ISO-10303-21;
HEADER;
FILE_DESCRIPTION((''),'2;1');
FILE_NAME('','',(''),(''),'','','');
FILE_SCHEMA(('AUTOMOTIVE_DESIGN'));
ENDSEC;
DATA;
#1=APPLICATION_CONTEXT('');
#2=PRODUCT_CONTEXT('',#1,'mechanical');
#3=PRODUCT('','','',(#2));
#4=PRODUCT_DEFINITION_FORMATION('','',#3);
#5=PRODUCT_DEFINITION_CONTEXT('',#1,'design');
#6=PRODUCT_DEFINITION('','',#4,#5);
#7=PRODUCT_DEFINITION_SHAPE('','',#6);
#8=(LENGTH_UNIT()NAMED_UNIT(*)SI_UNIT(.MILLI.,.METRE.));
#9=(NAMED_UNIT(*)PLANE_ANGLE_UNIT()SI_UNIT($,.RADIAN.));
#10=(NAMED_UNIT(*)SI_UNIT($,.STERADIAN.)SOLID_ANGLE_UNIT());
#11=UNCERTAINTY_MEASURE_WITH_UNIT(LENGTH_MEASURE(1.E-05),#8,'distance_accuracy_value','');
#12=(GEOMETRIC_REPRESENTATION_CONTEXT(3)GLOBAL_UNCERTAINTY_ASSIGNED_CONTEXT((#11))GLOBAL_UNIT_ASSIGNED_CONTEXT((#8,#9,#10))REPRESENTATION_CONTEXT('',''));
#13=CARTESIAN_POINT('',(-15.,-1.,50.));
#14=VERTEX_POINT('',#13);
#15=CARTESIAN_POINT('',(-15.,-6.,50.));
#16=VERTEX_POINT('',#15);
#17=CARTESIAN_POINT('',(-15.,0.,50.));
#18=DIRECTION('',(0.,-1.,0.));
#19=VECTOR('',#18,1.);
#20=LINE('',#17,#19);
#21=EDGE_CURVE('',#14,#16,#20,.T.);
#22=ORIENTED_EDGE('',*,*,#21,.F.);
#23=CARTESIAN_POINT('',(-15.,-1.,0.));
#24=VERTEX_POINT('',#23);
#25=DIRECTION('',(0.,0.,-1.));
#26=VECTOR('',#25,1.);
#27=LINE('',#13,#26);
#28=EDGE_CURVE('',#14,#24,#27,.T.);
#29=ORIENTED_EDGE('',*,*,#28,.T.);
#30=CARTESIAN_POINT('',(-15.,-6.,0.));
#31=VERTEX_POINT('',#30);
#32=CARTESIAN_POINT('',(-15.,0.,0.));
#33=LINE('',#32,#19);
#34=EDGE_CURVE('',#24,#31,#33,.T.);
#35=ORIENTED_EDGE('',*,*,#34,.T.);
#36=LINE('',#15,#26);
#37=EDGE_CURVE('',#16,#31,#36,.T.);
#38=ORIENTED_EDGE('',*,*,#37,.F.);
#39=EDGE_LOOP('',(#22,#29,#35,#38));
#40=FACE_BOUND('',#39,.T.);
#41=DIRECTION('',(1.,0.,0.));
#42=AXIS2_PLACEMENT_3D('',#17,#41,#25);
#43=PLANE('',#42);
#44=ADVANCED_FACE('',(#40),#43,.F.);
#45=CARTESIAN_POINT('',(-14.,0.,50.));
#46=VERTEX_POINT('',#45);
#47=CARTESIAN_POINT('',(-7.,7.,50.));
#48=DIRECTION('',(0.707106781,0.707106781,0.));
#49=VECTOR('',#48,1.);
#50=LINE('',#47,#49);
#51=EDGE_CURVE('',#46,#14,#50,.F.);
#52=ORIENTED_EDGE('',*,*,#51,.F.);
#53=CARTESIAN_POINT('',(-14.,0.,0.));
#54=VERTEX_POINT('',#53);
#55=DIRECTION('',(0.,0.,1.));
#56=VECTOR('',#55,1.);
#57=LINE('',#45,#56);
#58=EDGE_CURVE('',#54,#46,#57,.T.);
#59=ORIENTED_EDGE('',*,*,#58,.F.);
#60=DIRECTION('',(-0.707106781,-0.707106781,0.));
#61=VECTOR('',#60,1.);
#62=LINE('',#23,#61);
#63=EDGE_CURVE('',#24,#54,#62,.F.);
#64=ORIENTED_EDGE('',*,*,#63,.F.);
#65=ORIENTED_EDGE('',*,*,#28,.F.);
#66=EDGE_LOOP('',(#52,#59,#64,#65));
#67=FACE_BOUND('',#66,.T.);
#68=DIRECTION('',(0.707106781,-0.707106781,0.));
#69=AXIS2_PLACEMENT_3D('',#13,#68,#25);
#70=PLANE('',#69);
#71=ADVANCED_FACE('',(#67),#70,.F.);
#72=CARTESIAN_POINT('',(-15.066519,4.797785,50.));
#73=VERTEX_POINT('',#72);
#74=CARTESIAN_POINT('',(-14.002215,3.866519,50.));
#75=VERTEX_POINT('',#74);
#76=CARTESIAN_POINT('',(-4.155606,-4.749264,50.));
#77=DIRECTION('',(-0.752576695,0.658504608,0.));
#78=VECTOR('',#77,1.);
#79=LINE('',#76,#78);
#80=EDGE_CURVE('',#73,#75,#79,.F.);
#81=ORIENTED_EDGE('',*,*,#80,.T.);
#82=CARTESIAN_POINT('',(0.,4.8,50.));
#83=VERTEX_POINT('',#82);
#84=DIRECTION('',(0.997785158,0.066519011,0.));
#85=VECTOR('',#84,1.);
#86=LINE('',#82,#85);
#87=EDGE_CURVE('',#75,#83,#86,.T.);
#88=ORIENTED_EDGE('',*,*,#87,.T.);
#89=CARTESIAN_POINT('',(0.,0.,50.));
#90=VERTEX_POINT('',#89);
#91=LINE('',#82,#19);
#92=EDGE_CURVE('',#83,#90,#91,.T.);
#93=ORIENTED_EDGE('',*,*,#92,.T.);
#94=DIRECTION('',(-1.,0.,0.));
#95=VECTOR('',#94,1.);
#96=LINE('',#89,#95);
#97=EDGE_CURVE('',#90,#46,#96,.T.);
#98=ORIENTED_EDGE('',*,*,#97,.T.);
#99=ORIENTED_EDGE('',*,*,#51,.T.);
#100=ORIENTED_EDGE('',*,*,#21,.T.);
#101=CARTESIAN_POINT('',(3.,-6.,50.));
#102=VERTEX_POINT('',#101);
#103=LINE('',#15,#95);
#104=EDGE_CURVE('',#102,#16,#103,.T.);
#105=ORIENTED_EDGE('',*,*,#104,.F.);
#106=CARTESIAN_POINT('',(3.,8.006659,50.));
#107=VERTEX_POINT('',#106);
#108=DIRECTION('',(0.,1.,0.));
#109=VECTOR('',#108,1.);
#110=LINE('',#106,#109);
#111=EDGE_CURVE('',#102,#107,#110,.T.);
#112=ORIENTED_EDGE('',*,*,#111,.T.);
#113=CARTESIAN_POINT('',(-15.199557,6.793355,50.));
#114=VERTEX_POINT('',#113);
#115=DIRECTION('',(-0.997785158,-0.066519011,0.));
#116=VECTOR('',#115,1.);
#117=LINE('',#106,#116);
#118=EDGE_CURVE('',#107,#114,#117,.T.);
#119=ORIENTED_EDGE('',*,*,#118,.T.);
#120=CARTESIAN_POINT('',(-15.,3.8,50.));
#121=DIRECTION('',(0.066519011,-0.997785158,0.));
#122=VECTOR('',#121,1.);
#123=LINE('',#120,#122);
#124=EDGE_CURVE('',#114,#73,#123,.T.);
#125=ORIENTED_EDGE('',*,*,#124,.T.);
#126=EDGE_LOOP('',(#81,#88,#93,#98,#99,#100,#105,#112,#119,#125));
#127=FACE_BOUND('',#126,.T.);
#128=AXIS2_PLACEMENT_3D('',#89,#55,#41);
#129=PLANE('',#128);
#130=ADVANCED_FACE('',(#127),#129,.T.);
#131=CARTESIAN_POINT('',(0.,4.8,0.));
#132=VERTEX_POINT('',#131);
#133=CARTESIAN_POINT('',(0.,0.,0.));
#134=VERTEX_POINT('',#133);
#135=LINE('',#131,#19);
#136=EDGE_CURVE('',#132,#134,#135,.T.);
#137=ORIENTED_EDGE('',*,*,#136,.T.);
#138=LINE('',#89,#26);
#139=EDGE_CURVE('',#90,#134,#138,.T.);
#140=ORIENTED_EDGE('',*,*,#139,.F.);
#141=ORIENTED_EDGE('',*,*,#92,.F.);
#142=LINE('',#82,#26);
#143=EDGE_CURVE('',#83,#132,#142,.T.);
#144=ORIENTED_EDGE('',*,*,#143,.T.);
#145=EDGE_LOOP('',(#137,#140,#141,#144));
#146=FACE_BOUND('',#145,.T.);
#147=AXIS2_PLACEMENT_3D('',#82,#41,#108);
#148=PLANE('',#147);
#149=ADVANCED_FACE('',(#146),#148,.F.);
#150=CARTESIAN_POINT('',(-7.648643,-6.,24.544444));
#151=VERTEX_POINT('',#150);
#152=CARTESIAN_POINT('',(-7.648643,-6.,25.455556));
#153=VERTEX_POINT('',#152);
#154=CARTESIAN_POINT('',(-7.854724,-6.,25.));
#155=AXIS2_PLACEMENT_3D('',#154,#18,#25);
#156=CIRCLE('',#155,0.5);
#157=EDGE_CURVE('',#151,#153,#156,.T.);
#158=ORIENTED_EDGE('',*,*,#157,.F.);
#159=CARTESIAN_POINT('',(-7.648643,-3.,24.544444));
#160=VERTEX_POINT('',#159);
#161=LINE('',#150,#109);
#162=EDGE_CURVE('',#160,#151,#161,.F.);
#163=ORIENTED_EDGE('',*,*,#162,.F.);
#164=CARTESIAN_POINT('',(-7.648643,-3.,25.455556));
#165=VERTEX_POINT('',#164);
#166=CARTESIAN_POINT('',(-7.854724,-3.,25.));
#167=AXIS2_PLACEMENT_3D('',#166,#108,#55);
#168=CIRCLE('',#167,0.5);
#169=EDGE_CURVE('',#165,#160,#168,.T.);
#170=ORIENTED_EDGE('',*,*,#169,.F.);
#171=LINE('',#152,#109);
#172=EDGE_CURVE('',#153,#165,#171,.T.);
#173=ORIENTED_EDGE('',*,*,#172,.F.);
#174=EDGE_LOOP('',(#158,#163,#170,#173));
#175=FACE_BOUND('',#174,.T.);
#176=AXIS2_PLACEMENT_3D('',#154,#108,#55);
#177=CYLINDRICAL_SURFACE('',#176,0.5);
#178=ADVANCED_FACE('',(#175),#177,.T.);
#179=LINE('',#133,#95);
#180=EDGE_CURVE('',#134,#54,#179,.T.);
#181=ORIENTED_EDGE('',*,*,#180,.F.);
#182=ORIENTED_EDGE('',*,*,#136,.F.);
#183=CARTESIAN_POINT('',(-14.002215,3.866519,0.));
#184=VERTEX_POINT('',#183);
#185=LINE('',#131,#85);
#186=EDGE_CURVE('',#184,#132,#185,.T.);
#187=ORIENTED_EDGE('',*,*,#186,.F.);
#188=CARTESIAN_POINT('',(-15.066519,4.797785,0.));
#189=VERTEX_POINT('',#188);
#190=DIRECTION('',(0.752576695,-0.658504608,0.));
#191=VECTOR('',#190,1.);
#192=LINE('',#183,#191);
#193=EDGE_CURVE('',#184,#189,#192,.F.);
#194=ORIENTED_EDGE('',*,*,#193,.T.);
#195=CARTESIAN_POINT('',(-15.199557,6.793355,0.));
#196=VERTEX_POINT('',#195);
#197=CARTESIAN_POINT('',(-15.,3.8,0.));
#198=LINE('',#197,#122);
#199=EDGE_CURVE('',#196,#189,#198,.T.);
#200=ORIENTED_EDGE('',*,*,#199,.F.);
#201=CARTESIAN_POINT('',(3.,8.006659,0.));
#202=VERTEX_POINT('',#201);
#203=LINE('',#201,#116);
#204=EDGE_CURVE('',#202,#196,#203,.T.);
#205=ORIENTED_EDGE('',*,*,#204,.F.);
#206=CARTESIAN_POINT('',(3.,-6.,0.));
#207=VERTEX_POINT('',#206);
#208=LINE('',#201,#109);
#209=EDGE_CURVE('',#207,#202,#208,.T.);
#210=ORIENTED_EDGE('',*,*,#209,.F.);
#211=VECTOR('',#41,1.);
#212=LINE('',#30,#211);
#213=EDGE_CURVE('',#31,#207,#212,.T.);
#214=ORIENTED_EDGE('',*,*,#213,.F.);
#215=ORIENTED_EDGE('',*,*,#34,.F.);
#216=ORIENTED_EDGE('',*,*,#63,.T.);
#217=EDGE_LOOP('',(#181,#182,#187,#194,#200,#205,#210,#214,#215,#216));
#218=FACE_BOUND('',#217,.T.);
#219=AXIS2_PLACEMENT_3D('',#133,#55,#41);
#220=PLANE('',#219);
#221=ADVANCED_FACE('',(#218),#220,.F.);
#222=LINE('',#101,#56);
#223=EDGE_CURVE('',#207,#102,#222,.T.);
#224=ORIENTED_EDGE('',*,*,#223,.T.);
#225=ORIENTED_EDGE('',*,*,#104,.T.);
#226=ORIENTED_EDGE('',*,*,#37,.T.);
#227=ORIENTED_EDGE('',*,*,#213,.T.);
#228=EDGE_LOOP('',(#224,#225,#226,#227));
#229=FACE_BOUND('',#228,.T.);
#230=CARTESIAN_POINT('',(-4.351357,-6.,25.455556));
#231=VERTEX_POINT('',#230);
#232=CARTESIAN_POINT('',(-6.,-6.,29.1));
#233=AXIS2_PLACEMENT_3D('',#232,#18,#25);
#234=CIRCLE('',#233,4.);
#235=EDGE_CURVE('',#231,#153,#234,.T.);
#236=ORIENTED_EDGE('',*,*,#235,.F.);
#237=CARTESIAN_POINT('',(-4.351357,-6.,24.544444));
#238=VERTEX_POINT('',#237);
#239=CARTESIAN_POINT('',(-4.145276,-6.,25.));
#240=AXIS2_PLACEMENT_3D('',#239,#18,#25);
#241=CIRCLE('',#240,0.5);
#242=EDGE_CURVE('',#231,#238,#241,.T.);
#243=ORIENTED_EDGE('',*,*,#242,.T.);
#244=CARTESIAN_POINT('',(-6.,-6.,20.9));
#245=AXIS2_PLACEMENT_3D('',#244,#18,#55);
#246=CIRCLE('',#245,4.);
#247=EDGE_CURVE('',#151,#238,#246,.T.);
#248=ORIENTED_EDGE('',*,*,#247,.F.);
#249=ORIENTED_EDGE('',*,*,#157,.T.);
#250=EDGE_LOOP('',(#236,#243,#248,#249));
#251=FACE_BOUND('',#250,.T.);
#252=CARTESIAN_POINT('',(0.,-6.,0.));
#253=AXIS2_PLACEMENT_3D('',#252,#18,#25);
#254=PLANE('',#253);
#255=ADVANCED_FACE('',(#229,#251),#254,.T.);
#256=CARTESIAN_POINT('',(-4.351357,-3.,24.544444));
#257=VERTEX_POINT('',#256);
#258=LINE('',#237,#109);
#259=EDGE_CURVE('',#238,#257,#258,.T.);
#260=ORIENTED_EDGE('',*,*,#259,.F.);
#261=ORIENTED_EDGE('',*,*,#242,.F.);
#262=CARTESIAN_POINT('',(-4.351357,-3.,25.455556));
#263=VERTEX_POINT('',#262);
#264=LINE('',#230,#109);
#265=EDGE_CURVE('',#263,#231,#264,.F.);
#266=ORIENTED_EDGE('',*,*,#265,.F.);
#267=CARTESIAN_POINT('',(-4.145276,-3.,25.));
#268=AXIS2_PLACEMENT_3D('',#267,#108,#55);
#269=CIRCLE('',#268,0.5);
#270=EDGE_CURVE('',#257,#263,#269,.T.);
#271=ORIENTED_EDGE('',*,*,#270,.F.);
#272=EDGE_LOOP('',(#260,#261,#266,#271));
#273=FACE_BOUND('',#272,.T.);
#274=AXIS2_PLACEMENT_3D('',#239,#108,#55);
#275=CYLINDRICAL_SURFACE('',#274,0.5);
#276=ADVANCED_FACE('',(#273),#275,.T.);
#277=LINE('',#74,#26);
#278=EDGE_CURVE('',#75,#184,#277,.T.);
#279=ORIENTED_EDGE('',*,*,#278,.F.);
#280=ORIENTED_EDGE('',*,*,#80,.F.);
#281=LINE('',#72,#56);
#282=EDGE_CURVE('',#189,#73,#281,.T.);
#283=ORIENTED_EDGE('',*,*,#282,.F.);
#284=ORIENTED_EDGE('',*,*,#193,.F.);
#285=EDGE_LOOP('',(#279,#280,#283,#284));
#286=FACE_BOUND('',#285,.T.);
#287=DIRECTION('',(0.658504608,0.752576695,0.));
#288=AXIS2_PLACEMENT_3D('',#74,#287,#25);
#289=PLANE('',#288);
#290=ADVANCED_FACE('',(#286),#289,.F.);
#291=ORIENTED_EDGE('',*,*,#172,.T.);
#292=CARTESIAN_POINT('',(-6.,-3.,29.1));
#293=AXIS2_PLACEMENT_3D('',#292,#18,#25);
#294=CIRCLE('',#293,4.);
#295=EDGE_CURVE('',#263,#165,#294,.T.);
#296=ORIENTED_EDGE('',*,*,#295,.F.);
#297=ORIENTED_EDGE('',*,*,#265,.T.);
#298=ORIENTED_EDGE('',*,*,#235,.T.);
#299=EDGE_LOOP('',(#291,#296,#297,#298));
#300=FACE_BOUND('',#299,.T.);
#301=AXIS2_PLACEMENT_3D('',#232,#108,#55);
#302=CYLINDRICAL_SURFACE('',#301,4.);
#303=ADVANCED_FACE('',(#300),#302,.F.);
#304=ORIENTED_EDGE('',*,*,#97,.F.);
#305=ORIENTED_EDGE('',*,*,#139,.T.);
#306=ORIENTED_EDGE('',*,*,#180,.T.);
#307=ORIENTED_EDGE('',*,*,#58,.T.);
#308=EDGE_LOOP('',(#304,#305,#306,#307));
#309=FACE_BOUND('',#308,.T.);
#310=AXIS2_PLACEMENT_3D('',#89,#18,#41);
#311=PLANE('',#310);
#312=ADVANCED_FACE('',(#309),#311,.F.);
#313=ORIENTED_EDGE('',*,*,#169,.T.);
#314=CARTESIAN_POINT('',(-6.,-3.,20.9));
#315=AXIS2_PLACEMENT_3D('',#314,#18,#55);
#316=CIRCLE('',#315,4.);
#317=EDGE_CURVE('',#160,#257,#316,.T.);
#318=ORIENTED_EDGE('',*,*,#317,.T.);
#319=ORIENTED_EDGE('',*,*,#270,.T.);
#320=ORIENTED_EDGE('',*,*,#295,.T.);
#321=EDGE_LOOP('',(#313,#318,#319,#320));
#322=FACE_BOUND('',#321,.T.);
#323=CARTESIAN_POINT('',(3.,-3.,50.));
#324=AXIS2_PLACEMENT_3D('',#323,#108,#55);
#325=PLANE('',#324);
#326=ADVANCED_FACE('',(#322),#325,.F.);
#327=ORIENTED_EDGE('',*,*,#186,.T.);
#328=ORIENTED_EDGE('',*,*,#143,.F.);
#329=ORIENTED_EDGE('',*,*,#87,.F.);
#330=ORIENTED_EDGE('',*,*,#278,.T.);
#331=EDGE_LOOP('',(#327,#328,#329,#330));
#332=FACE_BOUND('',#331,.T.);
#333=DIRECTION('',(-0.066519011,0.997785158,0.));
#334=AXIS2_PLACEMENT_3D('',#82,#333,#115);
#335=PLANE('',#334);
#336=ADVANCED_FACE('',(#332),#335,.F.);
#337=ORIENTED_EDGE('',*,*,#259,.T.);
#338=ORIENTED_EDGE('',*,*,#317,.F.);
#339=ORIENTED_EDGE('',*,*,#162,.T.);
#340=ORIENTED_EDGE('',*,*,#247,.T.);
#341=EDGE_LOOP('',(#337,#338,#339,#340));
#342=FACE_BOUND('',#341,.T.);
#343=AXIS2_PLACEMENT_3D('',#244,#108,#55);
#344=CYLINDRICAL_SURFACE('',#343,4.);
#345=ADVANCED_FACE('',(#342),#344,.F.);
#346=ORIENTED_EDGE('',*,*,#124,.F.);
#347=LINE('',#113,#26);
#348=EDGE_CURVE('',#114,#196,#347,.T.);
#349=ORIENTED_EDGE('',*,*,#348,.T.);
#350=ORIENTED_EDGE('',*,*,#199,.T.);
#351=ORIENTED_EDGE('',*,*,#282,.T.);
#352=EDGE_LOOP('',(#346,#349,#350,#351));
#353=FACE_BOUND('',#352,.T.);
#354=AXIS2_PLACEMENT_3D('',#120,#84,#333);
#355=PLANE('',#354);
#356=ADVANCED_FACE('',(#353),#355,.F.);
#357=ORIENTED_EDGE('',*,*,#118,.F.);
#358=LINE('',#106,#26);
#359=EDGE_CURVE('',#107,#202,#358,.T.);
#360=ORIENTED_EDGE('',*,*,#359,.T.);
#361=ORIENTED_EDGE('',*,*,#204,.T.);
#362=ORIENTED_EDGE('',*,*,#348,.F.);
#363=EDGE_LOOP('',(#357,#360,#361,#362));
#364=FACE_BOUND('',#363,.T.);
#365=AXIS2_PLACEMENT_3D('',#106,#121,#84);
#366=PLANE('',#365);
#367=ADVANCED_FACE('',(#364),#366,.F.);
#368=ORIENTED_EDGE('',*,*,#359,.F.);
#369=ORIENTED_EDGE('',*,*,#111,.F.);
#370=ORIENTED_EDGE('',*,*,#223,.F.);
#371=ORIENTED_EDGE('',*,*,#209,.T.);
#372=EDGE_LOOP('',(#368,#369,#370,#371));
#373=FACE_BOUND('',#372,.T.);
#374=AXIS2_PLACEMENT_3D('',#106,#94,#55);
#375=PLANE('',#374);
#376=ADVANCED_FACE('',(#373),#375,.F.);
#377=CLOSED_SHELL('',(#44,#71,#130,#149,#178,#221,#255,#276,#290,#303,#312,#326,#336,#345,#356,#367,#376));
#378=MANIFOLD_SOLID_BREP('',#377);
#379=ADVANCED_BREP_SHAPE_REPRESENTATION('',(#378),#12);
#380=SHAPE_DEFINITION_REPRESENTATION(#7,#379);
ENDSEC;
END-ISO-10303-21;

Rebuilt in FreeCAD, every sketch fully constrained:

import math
import FreeCAD as App
import Part
import Sketcher

V = App.Vector
Q = App.Units.Quantity


def edges_at(feature, points):
    """Names of the edges that pass closest to the given points."""
    edges = feature.Shape.Edges
    near = lambda p: min(range(len(edges)), key=lambda i: edges[i].distToShape(Part.Vertex(*p))[0])
    return sorted({f"Edge{near(p) + 1}" for p in points})

doc = App.newDocument("Part")
body = doc.addObject("PartDesign::Body", "Body")

sketch1 = body.newObject("Sketcher::SketchObject", "Sketch")
sketch1.AttachmentSupport = (doc.getObject("XY_Plane"), [""])
sketch1.MapMode = "FlatFace"
sketch1.addGeometry([
    Part.LineSegment(V(0, 4.8, 0), V(0, 0, 0)),
    Part.LineSegment(V(0, 0, 0), V(-15, 0, 0)),
    Part.LineSegment(V(-15, 0, 0), V(-15, -3, 0)),
    Part.LineSegment(V(-15, -3, 0), V(3, -3, 0)),
    Part.LineSegment(V(3, -3, 0), V(3, 8, 0)),
    Part.LineSegment(V(3, 8, 0), V(-15.2, 6.8, 0)),
    Part.LineSegment(V(-15.2, 6.8, 0), V(-15, 3.8, 0)),
    Part.LineSegment(V(-15, 3.8, 0), V(0, 4.8, 0)),
], False)
sketch1.addConstraint([
    Sketcher.Constraint("Coincident", 0, 2, 1, 1),
    Sketcher.Constraint("Coincident", 1, 2, 2, 1),
    Sketcher.Constraint("Coincident", 2, 2, 3, 1),
    Sketcher.Constraint("Coincident", 3, 2, 4, 1),
    Sketcher.Constraint("Coincident", 4, 2, 5, 1),
    Sketcher.Constraint("Coincident", 5, 2, 6, 1),
    Sketcher.Constraint("Coincident", 6, 2, 7, 1),
    Sketcher.Constraint("Coincident", 7, 2, 0, 1),
    Sketcher.Constraint("Vertical", 0),
    Sketcher.Constraint("Horizontal", 1),
    Sketcher.Constraint("Vertical", 2),
    Sketcher.Constraint("Horizontal", 3),
    Sketcher.Constraint("Vertical", 4),
    Sketcher.Constraint("Coincident", 0, 2, -1, 1),
    Sketcher.Constraint("Perpendicular", 5, 6),
    Sketcher.Constraint("Perpendicular", 6, 7),
    Sketcher.Constraint("Vertical", 2, 2, 6, 2),
    Sketcher.Constraint("DistanceX", 1, 2, 1, 1, Q("15 mm")),
    Sketcher.Constraint("DistanceX", 3, 1, 3, 2, Q("18 mm")),
    Sketcher.Constraint("DistanceY", 2, 2, 2, 1, Q("3 mm")),
    Sketcher.Constraint("Distance", 6, Q("3 mm")),
    Sketcher.Constraint("DistanceY", 0, 2, 0, 1, Q("4.8 mm")),
    Sketcher.Constraint("DistanceY", 6, 2, 7, 2, Q("1 mm")),
])
pad1 = body.newObject("PartDesign::Pad", "Pad")
pad1.Profile = sketch1
pad1.Length = 50

sketch2 = body.newObject("Sketcher::SketchObject", "Sketch001")
sketch2.AttachmentSupport = (doc.getObject("XZ_Plane"), [""])
sketch2.MapMode = "FlatFace"
sketch2.AttachmentOffset = App.Placement(V(0, 0, 3), App.Rotation())
sketch2.addGeometry([
    Part.LineSegment(V(-15, 50, 0), V(-15, 0, 0)),
    Part.LineSegment(V(-15, 0, 0), V(3, 0, 0)),
    Part.LineSegment(V(3, 0, 0), V(3, 50, 0)),
    Part.LineSegment(V(3, 50, 0), V(-15, 50, 0)),
    Part.LineSegment(V(-4.8, 25.3, 0), V(-5.6, 25, 0)),
    Part.LineSegment(V(-5.6, 25, 0), V(-4.8, 24.7, 0)),
    Part.ArcOfCircle(Part.Circle(V(-6, 20.9, 0), V(0, 0, 1), 4), math.radians(107), math.radians(433)),
    Part.LineSegment(V(-7.2, 24.7, 0), V(-6.4, 25, 0)),
    Part.LineSegment(V(-6.4, 25, 0), V(-7.2, 25.3, 0)),
    Part.ArcOfCircle(Part.Circle(V(-6, 29.1, 0), V(0, 0, 1), 4), math.radians(-73), math.radians(253)),
], False)
sketch2.addConstraint([
    Sketcher.Constraint("Coincident", 0, 2, 1, 1),
    Sketcher.Constraint("Coincident", 1, 2, 2, 1),
    Sketcher.Constraint("Coincident", 2, 2, 3, 1),
    Sketcher.Constraint("Coincident", 3, 2, 0, 1),
    Sketcher.Constraint("Coincident", 4, 2, 5, 1),
    Sketcher.Constraint("Coincident", 5, 2, 6, 2),
    Sketcher.Constraint("Coincident", 6, 1, 7, 1),
    Sketcher.Constraint("Coincident", 7, 2, 8, 1),
    Sketcher.Constraint("Coincident", 8, 2, 9, 2),
    Sketcher.Constraint("Coincident", 9, 1, 4, 1),
    Sketcher.Constraint("Vertical", 0),
    Sketcher.Constraint("Horizontal", 1),
    Sketcher.Constraint("Vertical", 2),
    Sketcher.Constraint("Horizontal", 3),
    Sketcher.Constraint("Equal", 6, 9),
    Sketcher.Constraint("PointOnObject", 0, 2, -1),
    Sketcher.Constraint("Parallel", 4, 7),
    Sketcher.Constraint("Parallel", 5, 8),
    Sketcher.Constraint("Horizontal", 5, 2, 6, 1),
    Sketcher.Constraint("Horizontal", 4, 2, 7, 2),
    Sketcher.Constraint("Horizontal", 8, 2, 9, 1),
    Sketcher.Constraint("Vertical", 6, 3, 9, 3),
    Sketcher.Constraint("Vertical", 6, 1, 8, 2),
    Sketcher.Constraint("Radius", 6, Q("4 mm")),
    Sketcher.Constraint("DistanceX", 1, 1, 1, 2, Q("18 mm")),
    Sketcher.Constraint("DistanceY", 0, 2, 0, 1, Q("50 mm")),
    Sketcher.Constraint("DistanceX", 6, 3, -1, 1, Q("6 mm")),
    Sketcher.Constraint("DistanceX", 0, 2, -1, 1, Q("15 mm")),
    Sketcher.Constraint("DistanceY", -1, 1, 4, 2, Q("25 mm")),
    Sketcher.Constraint("DistanceY", -1, 1, 6, 3, Q("20.9 mm")),
    Sketcher.Constraint("Distance", 4, Q("0.83944 mm")),
    Sketcher.Constraint("DistanceX", 4, 2, -1, 1, Q("5.636811 mm")),
])
pad2 = body.newObject("PartDesign::Pad", "Pad001")
pad2.Profile = sketch2
pad2.Length = 3
doc.recompute()

chamfer = body.newObject("PartDesign::Chamfer", "Chamfer")
chamfer.Base = (pad2, edges_at(pad2, [(-15, 3.8, 25), (-15, 0, 25)]))
chamfer.Size = 1
doc.recompute()

fillet = body.newObject("PartDesign::Fillet", "Fillet")
fillet.Base = (chamfer, edges_at(chamfer, [(-6.363, -4.5, 25), (-5.637, -4.5, 25)]))
fillet.Radius = 0.5

doc.recompute()
